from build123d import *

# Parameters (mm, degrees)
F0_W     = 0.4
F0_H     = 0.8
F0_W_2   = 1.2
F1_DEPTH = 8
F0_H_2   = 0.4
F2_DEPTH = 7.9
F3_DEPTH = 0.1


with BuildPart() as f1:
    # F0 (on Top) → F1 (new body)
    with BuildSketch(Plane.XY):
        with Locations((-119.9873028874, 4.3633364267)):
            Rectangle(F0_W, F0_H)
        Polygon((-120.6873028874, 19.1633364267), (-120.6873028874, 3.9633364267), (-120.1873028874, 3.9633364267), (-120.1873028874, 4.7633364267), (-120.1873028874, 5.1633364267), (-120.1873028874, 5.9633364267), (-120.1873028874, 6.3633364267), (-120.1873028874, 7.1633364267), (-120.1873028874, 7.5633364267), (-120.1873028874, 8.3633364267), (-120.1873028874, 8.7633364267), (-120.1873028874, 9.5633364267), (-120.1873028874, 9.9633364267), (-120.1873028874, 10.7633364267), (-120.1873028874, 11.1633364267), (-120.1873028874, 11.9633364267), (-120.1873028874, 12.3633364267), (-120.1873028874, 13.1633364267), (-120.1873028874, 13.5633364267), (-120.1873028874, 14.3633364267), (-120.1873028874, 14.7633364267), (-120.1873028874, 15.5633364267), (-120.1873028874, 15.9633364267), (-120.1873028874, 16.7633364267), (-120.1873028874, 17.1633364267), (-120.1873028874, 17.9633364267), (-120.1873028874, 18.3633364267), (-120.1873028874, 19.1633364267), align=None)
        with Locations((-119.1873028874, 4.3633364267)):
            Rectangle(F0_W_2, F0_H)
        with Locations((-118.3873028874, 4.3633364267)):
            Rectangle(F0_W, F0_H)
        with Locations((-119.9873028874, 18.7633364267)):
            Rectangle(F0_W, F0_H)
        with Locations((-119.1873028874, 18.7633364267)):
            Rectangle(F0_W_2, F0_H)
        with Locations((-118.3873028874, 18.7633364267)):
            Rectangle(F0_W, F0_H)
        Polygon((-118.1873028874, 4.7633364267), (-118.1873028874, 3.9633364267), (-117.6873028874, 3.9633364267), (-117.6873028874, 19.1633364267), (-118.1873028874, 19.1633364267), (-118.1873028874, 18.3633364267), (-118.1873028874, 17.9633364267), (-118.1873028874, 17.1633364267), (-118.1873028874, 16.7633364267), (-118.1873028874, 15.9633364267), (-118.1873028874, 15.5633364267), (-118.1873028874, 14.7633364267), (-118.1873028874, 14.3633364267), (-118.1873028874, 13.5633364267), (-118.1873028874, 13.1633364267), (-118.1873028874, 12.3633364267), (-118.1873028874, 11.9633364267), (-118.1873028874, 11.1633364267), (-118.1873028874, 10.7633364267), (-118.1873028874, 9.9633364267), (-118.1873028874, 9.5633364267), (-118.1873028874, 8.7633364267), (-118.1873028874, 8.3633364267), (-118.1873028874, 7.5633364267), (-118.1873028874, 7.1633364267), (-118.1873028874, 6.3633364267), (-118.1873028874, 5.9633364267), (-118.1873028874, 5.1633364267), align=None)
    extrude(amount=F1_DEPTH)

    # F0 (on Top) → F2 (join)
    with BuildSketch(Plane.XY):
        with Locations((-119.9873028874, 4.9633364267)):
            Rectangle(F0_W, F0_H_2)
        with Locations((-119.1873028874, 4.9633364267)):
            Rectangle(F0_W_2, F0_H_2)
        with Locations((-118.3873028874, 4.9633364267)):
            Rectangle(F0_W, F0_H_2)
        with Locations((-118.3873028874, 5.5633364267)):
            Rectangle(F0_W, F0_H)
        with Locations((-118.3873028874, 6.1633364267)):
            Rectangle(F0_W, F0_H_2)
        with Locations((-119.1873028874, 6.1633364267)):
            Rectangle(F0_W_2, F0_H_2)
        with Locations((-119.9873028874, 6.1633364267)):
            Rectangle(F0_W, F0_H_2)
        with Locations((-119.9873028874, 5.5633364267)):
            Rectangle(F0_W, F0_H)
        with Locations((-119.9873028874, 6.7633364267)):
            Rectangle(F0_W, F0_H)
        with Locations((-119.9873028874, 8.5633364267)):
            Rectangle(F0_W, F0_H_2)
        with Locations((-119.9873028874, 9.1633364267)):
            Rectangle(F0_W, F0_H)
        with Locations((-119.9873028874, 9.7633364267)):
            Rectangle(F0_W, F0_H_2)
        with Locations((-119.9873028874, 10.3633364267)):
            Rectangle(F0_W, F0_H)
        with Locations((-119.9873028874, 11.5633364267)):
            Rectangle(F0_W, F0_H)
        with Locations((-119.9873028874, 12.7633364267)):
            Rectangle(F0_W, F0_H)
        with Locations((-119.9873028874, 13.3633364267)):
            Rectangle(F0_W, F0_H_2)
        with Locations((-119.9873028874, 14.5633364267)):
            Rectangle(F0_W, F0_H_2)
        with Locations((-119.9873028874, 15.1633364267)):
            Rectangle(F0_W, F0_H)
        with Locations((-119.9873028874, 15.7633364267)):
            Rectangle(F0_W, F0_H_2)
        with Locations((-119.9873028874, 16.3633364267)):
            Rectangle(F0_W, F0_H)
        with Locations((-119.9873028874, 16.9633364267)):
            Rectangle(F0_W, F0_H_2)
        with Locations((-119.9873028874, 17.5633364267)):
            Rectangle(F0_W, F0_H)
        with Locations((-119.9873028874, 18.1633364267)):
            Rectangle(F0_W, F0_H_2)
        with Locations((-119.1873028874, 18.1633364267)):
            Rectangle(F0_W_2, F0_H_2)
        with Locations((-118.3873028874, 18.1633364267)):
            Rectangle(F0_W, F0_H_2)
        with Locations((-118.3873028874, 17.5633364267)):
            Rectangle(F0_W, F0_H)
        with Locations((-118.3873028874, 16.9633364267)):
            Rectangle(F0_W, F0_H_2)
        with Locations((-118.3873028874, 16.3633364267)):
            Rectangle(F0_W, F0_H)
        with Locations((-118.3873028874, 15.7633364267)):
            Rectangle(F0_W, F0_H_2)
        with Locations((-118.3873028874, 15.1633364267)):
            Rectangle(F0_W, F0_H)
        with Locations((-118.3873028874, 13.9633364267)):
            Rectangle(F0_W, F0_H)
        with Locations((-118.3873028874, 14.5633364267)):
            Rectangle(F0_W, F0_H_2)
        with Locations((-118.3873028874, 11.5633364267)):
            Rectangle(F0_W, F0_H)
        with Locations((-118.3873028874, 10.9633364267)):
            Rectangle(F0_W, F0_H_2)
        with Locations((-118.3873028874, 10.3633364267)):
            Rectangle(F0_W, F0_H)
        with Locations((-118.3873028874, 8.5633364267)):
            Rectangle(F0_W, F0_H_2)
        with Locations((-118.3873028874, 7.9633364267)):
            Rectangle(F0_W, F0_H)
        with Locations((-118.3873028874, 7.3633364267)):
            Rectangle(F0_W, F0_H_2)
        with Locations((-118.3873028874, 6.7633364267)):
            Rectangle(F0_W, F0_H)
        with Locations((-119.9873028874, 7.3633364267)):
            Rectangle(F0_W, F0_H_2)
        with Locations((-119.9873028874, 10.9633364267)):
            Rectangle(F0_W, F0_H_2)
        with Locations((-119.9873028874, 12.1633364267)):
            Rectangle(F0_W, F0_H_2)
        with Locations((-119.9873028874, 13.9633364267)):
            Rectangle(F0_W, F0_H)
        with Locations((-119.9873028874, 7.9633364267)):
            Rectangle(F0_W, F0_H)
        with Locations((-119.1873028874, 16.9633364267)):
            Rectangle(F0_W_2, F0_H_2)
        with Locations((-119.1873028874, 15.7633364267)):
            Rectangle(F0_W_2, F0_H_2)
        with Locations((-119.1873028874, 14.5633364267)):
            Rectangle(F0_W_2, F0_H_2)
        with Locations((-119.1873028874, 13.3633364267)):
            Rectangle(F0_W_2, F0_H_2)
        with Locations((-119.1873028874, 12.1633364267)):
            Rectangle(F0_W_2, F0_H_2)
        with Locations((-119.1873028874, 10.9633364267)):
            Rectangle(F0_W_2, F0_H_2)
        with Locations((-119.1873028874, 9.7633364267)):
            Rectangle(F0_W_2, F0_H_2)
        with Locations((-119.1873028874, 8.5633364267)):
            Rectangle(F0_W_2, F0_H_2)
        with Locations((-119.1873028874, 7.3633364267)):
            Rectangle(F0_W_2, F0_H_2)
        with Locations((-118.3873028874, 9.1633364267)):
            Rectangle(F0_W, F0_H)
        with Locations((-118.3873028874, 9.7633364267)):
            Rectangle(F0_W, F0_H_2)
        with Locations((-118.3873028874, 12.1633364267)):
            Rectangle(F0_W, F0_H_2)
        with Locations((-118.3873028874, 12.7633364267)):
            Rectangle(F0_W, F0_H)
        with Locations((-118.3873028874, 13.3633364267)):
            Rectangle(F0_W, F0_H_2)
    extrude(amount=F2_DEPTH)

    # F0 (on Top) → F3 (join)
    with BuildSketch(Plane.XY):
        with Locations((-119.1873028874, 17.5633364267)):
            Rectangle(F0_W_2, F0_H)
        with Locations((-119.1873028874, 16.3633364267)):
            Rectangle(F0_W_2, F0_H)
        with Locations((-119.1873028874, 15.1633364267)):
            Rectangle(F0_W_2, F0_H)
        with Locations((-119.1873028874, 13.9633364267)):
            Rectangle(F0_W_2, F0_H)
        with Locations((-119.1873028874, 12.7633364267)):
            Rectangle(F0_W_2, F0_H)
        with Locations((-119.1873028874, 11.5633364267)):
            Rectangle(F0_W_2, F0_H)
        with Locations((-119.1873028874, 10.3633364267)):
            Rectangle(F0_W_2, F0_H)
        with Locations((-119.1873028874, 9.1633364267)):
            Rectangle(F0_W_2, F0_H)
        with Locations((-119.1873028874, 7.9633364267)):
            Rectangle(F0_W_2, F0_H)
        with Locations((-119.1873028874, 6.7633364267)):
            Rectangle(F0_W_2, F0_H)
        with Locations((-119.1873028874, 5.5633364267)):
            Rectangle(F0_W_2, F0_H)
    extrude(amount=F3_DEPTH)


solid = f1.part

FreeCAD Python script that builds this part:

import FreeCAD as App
import Part
import Sketcher
from FreeCAD import Vector

doc = App.newDocument("Part")
body = doc.addObject("PartDesign::Body", "Body")

sketch1 = body.newObject("Sketcher::SketchObject", "Sketch")
sketch1.AttachmentSupport = (doc.getObject("XY_Plane"), [""])
sketch1.MapMode = "FlatFace"
sketch1.addGeometry(Part.LineSegment(Vector(-120.687303, 19.163336, 0), Vector(-120.687303, 3.963336, 0)), False)
sketch1.addGeometry(Part.LineSegment(Vector(-120.687303, 3.963336, 0), Vector(-117.687303, 3.963336, 0)), False)
sketch1.addGeometry(Part.LineSegment(Vector(-117.687303, 3.963336, 0), Vector(-117.687303, 19.163336, 0)), False)
sketch1.addGeometry(Part.LineSegment(Vector(-117.687303, 19.163336, 0), Vector(-120.687303, 19.163336, 0)), False)
sketch1.addGeometry(Part.LineSegment(Vector(-120.187303, 4.763336, 0), Vector(-120.187303, 18.363336, 0)), False)
sketch1.addGeometry(Part.LineSegment(Vector(-120.187303, 18.363336, 0), Vector(-118.187303, 18.363336, 0)), False)
sketch1.addGeometry(Part.LineSegment(Vector(-118.187303, 18.363336, 0), Vector(-118.187303, 4.763336, 0)), False)
sketch1.addGeometry(Part.LineSegment(Vector(-118.187303, 4.763336, 0), Vector(-120.187303, 4.763336, 0)), False)
sketch1.addConstraint(Sketcher.Constraint("Coincident", 0, 2, 1, 1))
sketch1.addConstraint(Sketcher.Constraint("Coincident", 1, 2, 2, 1))
sketch1.addConstraint(Sketcher.Constraint("Coincident", 2, 2, 3, 1))
sketch1.addConstraint(Sketcher.Constraint("Coincident", 3, 2, 0, 1))
sketch1.addConstraint(Sketcher.Constraint("Coincident", 4, 2, 5, 1))
sketch1.addConstraint(Sketcher.Constraint("Coincident", 5, 2, 6, 1))
sketch1.addConstraint(Sketcher.Constraint("Coincident", 6, 2, 7, 1))
sketch1.addConstraint(Sketcher.Constraint("Coincident", 7, 2, 4, 1))
sketch1.addConstraint(Sketcher.Constraint("Vertical", 0))
sketch1.addConstraint(Sketcher.Constraint("Horizontal", 1))
sketch1.addConstraint(Sketcher.Constraint("Vertical", 2))
sketch1.addConstraint(Sketcher.Constraint("Horizontal", 3))
sketch1.addConstraint(Sketcher.Constraint("Vertical", 4))
sketch1.addConstraint(Sketcher.Constraint("Horizontal", 5))
sketch1.addConstraint(Sketcher.Constraint("Vertical", 6))
sketch1.addConstraint(Sketcher.Constraint("Horizontal", 7))
sketch1.addConstraint(Sketcher.Constraint("DistanceX", 1, 1, 1, 2, 3.0))
sketch1.addConstraint(Sketcher.Constraint("DistanceX", 5, 1, 5, 2, 2.0))
sketch1.addConstraint(Sketcher.Constraint("DistanceY", 0, 2, 0, 1, 15.2))
sketch1.addConstraint(Sketcher.Constraint("DistanceY", 4, 1, 4, 2, 13.6))
sketch1.addConstraint(Sketcher.Constraint("DistanceX", 3, 2, 4, 2, 0.5))
sketch1.addConstraint(Sketcher.Constraint("DistanceY", 4, 2, 3, 2, 0.8))
sketch1.addConstraint(Sketcher.Constraint("DistanceX", 0, 2, -1, 1, 120.687303))
sketch1.addConstraint(Sketcher.Constraint("DistanceY", -1, 1, 0, 2, 3.963336))
pad1 = body.newObject("PartDesign::Pad", "Pad")
pad1.Profile = sketch1
pad1.Length = 8

sketch2 = body.newObject("Sketcher::SketchObject", "Sketch001")
sketch2.AttachmentSupport = (doc.getObject("XY_Plane"), [""])
sketch2.MapMode = "FlatFace"
sketch2.addGeometry(Part.LineSegment(Vector(-118.187303, 4.763336, 0), Vector(-118.187303, 18.363336, 0)), False)
sketch2.addGeometry(Part.LineSegment(Vector(-118.187303, 18.363336, 0), Vector(-120.187303, 18.363336, 0)), False)
sketch2.addGeometry(Part.LineSegment(Vector(-120.187303, 18.363336, 0), Vector(-120.187303, 4.763336, 0)), False)
sketch2.addGeometry(Part.LineSegment(Vector(-120.187303, 4.763336, 0), Vector(-118.187303, 4.763336, 0)), False)
sketch2.addGeometry(Part.LineSegment(Vector(-119.787303, 5.963336, 0), Vector(-118.587303, 5.963336, 0)), False)
sketch2.addGeometry(Part.LineSegment(Vector(-118.587303, 5.963336, 0), Vector(-118.587303, 5.163336, 0)), False)
sketch2.addGeometry(Part.LineSegment(Vector(-118.587303, 5.163336, 0), Vector(-119.787303, 5.163336, 0)), False)
sketch2.addGeometry(Part.LineSegment(Vector(-119.787303, 5.163336, 0), Vector(-119.787303, 5.963336, 0)), False)
sketch2.addGeometry(Part.LineSegment(Vector(-119.787303, 6.363336, 0), Vector(-119.787303, 7.163336, 0)), False)
sketch2.addGeometry(Part.LineSegment(Vector(-119.787303, 7.163336, 0), Vector(-118.587303, 7.163336, 0)), False)
sketch2.addGeometry(Part.LineSegment(Vector(-118.587303, 7.163336, 0), Vector(-118.587303, 6.363336, 0)), False)
sketch2.addGeometry(Part.LineSegment(Vector(-118.587303, 6.363336, 0), Vector(-119.787303, 6.363336, 0)), False)
sketch2.addGeometry(Part.LineSegment(Vector(-119.787303, 7.563336, 0), Vector(-119.787303, 8.363336, 0)), False)
sketch2.addGeometry(Part.LineSegment(Vector(-119.787303, 8.363336, 0), Vector(-118.587303, 8.363336, 0)), False)
sketch2.addGeometry(Part.LineSegment(Vector(-118.587303, 8.363336, 0), Vector(-118.587303, 7.563336, 0)), False)
sketch2.addGeometry(Part.LineSegment(Vector(-118.587303, 7.563336, 0), Vector(-119.787303, 7.563336, 0)), False)
sketch2.addGeometry(Part.LineSegment(Vector(-119.787303, 9.563336, 0), Vector(-118.587303, 9.563336, 0)), False)
sketch2.addGeometry(Part.LineSegment(Vector(-118.587303, 9.563336, 0), Vector(-118.587303, 8.763336, 0)), False)
sketch2.addGeometry(Part.LineSegment(Vector(-118.587303, 8.763336, 0), Vector(-119.787303, 8.763336, 0)), False)
sketch2.addGeometry(Part.LineSegment(Vector(-119.787303, 8.763336, 0), Vector(-119.787303, 9.563336, 0)), False)
sketch2.addGeometry(Part.LineSegment(Vector(-118.587303, 10.763336, 0), Vector(-118.587303, 9.963336, 0)), False)
sketch2.addGeometry(Part.LineSegment(Vector(-118.587303, 9.963336, 0), Vector(-119.787303, 9.963336, 0)), False)
sketch2.addGeometry(Part.LineSegment(Vector(-119.787303, 9.963336, 0), Vector(-119.787303, 10.763336, 0)), False)
sketch2.addGeometry(Part.LineSegment(Vector(-119.787303, 10.763336, 0), Vector(-118.587303, 10.763336, 0)), False)
sketch2.addGeometry(Part.LineSegment(Vector(-119.787303, 11.963336, 0), Vector(-118.587303, 11.963336, 0)), False)
sketch2.addGeometry(Part.LineSegment(Vector(-118.587303, 11.963336, 0), Vector(-118.587303, 11.163336, 0)), False)
sketch2.addGeometry(Part.LineSegment(Vector(-118.587303, 11.163336, 0), Vector(-119.787303, 11.163336, 0)), False)
sketch2.addGeometry(Part.LineSegment(Vector(-119.787303, 11.163336, 0), Vector(-119.787303, 11.963336, 0)), False)
sketch2.addGeometry(Part.LineSegment(Vector(-119.787303, 13.163336, 0), Vector(-118.587303, 13.163336, 0)), False)
sketch2.addGeometry(Part.LineSegment(Vector(-118.587303, 13.163336, 0), Vector(-118.587303, 12.363336, 0)), False)
sketch2.addGeometry(Part.LineSegment(Vector(-118.587303, 12.363336, 0), Vector(-119.787303, 12.363336, 0)), False)
sketch2.addGeometry(Part.LineSegment(Vector(-119.787303, 12.363336, 0), Vector(-119.787303, 13.163336, 0)), False)
sketch2.addGeometry(Part.LineSegment(Vector(-118.587303, 13.563336, 0), Vector(-119.787303, 13.563336, 0)), False)
sketch2.addGeometry(Part.LineSegment(Vector(-119.787303, 13.563336, 0), Vector(-119.787303, 14.363336, 0)), False)
sketch2.addGeometry(Part.LineSegment(Vector(-119.787303, 14.363336, 0), Vector(-118.587303, 14.363336, 0)), False)
sketch2.addGeometry(Part.LineSegment(Vector(-118.587303, 14.363336, 0), Vector(-118.587303, 13.563336, 0)), False)
sketch2.addGeometry(Part.LineSegment(Vector(-119.787303, 14.763336, 0), Vector(-119.787303, 15.563336, 0)), False)
sketch2.addGeometry(Part.LineSegment(Vector(-119.787303, 15.563336, 0), Vector(-118.587303, 15.563336, 0)), False)
sketch2.addGeometry(Part.LineSegment(Vector(-118.587303, 15.563336, 0), Vector(-118.587303, 14.763336, 0)), False)
sketch2.addGeometry(Part.LineSegment(Vector(-118.587303, 14.763336, 0), Vector(-119.787303, 14.763336, 0)), False)
sketch2.addGeometry(Part.LineSegment(Vector(-119.787303, 15.963336, 0), Vector(-119.787303, 16.763336, 0)), False)
sketch2.addGeometry(Part.LineSegment(Vector(-119.787303, 16.763336, 0), Vector(-118.587303, 16.763336, 0)), False)
sketch2.addGeometry(Part.LineSegment(Vector(-118.587303, 16.763336, 0), Vector(-118.587303, 15.963336, 0)), False)
sketch2.addGeometry(Part.LineSegment(Vector(-118.587303, 15.963336, 0), Vector(-119.787303, 15.963336, 0)), False)
sketch2.addGeometry(Part.LineSegment(Vector(-119.787303, 17.163336, 0), Vector(-119.787303, 17.963336, 0)), False)
sketch2.addGeometry(Part.LineSegment(Vector(-119.787303, 17.963336, 0), Vector(-118.587303, 17.963336, 0)), False)
sketch2.addGeometry(Part.LineSegment(Vector(-118.587303, 17.963336, 0), Vector(-118.587303, 17.163336, 0)), False)
sketch2.addGeometry(Part.LineSegment(Vector(-118.587303, 17.163336, 0), Vector(-119.787303, 17.163336, 0)), False)
sketch2.addConstraint(Sketcher.Constraint("Coincident", 0, 2, 1, 1))
sketch2.addConstraint(Sketcher.Constraint("Coincident", 1, 2, 2, 1))
sketch2.addConstraint(Sketcher.Constraint("Coincident", 2, 2, 3, 1))
sketch2.addConstraint(Sketcher.Constraint("Coincident", 3, 2, 0, 1))
sketch2.addConstraint(Sketcher.Constraint("Coincident", 4, 2, 5, 1))
sketch2.addConstraint(Sketcher.Constraint("Coincident", 5, 2, 6, 1))
sketch2.addConstraint(Sketcher.Constraint("Coincident", 6, 2, 7, 1))
sketch2.addConstraint(Sketcher.Constraint("Coincident", 7, 2, 4, 1))
sketch2.addConstraint(Sketcher.Constraint("Coincident", 8, 2, 9, 1))
sketch2.addConstraint(Sketcher.Constraint("Coincident", 9, 2, 10, 1))
sketch2.addConstraint(Sketcher.Constraint("Coincident", 10, 2, 11, 1))
sketch2.addConstraint(Sketcher.Constraint("Coincident", 11, 2, 8, 1))
sketch2.addConstraint(Sketcher.Constraint("Coincident", 12, 2, 13, 1))
sketch2.addConstraint(Sketcher.Constraint("Coincident", 13, 2, 14, 1))
sketch2.addConstraint(Sketcher.Constraint("Coincident", 14, 2, 15, 1))
sketch2.addConstraint(Sketcher.Constraint("Coincident", 15, 2, 12, 1))
sketch2.addConstraint(Sketcher.Constraint("Coincident", 16, 2, 17, 1))
sketch2.addConstraint(Sketcher.Constraint("Coincident", 17, 2, 18, 1))
sketch2.addConstraint(Sketcher.Constraint("Coincident", 18, 2, 19, 1))
sketch2.addConstraint(Sketcher.Constraint("Coincident", 19, 2, 16, 1))
sketch2.addConstraint(Sketcher.Constraint("Coincident", 20, 2, 21, 1))
sketch2.addConstraint(Sketcher.Constraint("Coincident", 21, 2, 22, 1))
sketch2.addConstraint(Sketcher.Constraint("Coincident", 22, 2, 23, 1))
sketch2.addConstraint(Sketcher.Constraint("Coincident", 23, 2, 20, 1))
sketch2.addConstraint(Sketcher.Constraint("Coincident", 24, 2, 25, 1))
sketch2.addConstraint(Sketcher.Constraint("Coincident", 25, 2, 26, 1))
sketch2.addConstraint(Sketcher.Constraint("Coincident", 26, 2, 27, 1))
sketch2.addConstraint(Sketcher.Constraint("Coincident", 27, 2, 24, 1))
sketch2.addConstraint(Sketcher.Constraint("Coincident", 28, 2, 29, 1))
sketch2.addConstraint(Sketcher.Constraint("Coincident", 29, 2, 30, 1))
sketch2.addConstraint(Sketcher.Constraint("Coincident", 30, 2, 31, 1))
sketch2.addConstraint(Sketcher.Constraint("Coincident", 31, 2, 28, 1))
sketch2.addConstraint(Sketcher.Constraint("Coincident", 32, 2, 33, 1))
sketch2.addConstraint(Sketcher.Constraint("Coincident", 33, 2, 34, 1))
sketch2.addConstraint(Sketcher.Constraint("Coincident", 34, 2, 35, 1))
sketch2.addConstraint(Sketcher.Constraint("Coincident", 35, 2, 32, 1))
sketch2.addConstraint(Sketcher.Constraint("Coincident", 36, 2, 37, 1))
sketch2.addConstraint(Sketcher.Constraint("Coincident", 37, 2, 38, 1))
sketch2.addConstraint(Sketcher.Constraint("Coincident", 38, 2, 39, 1))
sketch2.addConstraint(Sketcher.Constraint("Coincident", 39, 2, 36, 1))
sketch2.addConstraint(Sketcher.Constraint("Coincident", 40, 2, 41, 1))
sketch2.addConstraint(Sketcher.Constraint("Coincident", 41, 2, 42, 1))
sketch2.addConstraint(Sketcher.Constraint("Coincident", 42, 2, 43, 1))
sketch2.addConstraint(Sketcher.Constraint("Coincident", 43, 2, 40, 1))
sketch2.addConstraint(Sketcher.Constraint("Coincident", 44, 2, 45, 1))
sketch2.addConstraint(Sketcher.Constraint("Coincident", 45, 2, 46, 1))
sketch2.addConstraint(Sketcher.Constraint("Coincident", 46, 2, 47, 1))
sketch2.addConstraint(Sketcher.Constraint("Coincident", 47, 2, 44, 1))
sketch2.addConstraint(Sketcher.Constraint("Vertical", 0))
sketch2.addConstraint(Sketcher.Constraint("Horizontal", 1))
sketch2.addConstraint(Sketcher.Constraint("Vertical", 2))
sketch2.addConstraint(Sketcher.Constraint("Horizontal", 3))
sketch2.addConstraint(Sketcher.Constraint("Horizontal", 4))
sketch2.addConstraint(Sketcher.Constraint("Vertical", 5))
sketch2.addConstraint(Sketcher.Constraint("Horizontal", 6))
sketch2.addConstraint(Sketcher.Constraint("Vertical", 7))
sketch2.addConstraint(Sketcher.Constraint("Vertical", 8))
sketch2.addConstraint(Sketcher.Constraint("Horizontal", 9))
sketch2.addConstraint(Sketcher.Constraint("Vertical", 10))
sketch2.addConstraint(Sketcher.Constraint("Horizontal", 11))
sketch2.addConstraint(Sketcher.Constraint("Vertical", 12))
sketch2.addConstraint(Sketcher.Constraint("Horizontal", 13))
sketch2.addConstraint(Sketcher.Constraint("Vertical", 14))
sketch2.addConstraint(Sketcher.Constraint("Horizontal", 15))
sketch2.addConstraint(Sketcher.Constraint("Horizontal", 16))
sketch2.addConstraint(Sketcher.Constraint("Vertical", 17))
sketch2.addConstraint(Sketcher.Constraint("Horizontal", 18))
sketch2.addConstraint(Sketcher.Constraint("Vertical", 19))
sketch2.addConstraint(Sketcher.Constraint("Vertical", 20))
sketch2.addConstraint(Sketcher.Constraint("Horizontal", 21))
sketch2.addConstraint(Sketcher.Constraint("Vertical", 22))
sketch2.addConstraint(Sketcher.Constraint("Horizontal", 23))
sketch2.addConstraint(Sketcher.Constraint("Horizontal", 24))
sketch2.addConstraint(Sketcher.Constraint("Vertical", 25))
sketch2.addConstraint(Sketcher.Constraint("Horizontal", 26))
sketch2.addConstraint(Sketcher.Constraint("Vertical", 27))
sketch2.addConstraint(Sketcher.Constraint("Horizontal", 28))
sketch2.addConstraint(Sketcher.Constraint("Vertical", 29))
sketch2.addConstraint(Sketcher.Constraint("Horizontal", 30))
sketch2.addConstraint(Sketcher.Constraint("Vertical", 31))
sketch2.addConstraint(Sketcher.Constraint("Horizontal", 32))
sketch2.addConstraint(Sketcher.Constraint("Vertical", 33))
sketch2.addConstraint(Sketcher.Constraint("Horizontal", 34))
sketch2.addConstraint(Sketcher.Constraint("Vertical", 35))
sketch2.addConstraint(Sketcher.Constraint("Vertical", 36))
sketch2.addConstraint(Sketcher.Constraint("Horizontal", 37))
sketch2.addConstraint(Sketcher.Constraint("Vertical", 38))
sketch2.addConstraint(Sketcher.Constraint("Horizontal", 39))
sketch2.addConstraint(Sketcher.Constraint("Vertical", 40))
sketch2.addConstraint(Sketcher.Constraint("Horizontal", 41))
sketch2.addConstraint(Sketcher.Constraint("Vertical", 42))
sketch2.addConstraint(Sketcher.Constraint("Horizontal", 43))
sketch2.addConstraint(Sketcher.Constraint("Vertical", 44))
sketch2.addConstraint(Sketcher.Constraint("Horizontal", 45))
sketch2.addConstraint(Sketcher.Constraint("Vertical", 46))
sketch2.addConstraint(Sketcher.Constraint("Horizontal", 47))
sketch2.addConstraint(Sketcher.Constraint("Vertical", 7, 2, 8, 2))
sketch2.addConstraint(Sketcher.Constraint("Vertical", 5, 2, 9, 2))
sketch2.addConstraint(Sketcher.Constraint("Vertical", 11, 2, 12, 2))
sketch2.addConstraint(Sketcher.Constraint("Vertical", 10, 2, 13, 2))
sketch2.addConstraint(Sketcher.Constraint("Vertical", 14, 2, 16, 2))
sketch2.addConstraint(Sketcher.Constraint("Vertical", 15, 2, 18, 2))
sketch2.addConstraint(Sketcher.Constraint("Vertical", 17, 2, 20, 2))
sketch2.addConstraint(Sketcher.Constraint("Vertical", 19, 2, 21, 2))
sketch2.addConstraint(Sketcher.Constraint("Vertical", 23, 2, 24, 2))
sketch2.addConstraint(Sketcher.Constraint("Vertical", 22, 2, 26, 2))
sketch2.addConstraint(Sketcher.Constraint("Vertical", 25, 2, 28, 2))
sketch2.addConstraint(Sketcher.Constraint("Vertical", 27, 2, 30, 2))
sketch2.addConstraint(Sketcher.Constraint("Vertical", 31, 2, 32, 2))
sketch2.addConstraint(Sketcher.Constraint("Vertical", 29, 2, 34, 2))
sketch2.addConstraint(Sketcher.Constraint("Vertical", 33, 2, 36, 2))
sketch2.addConstraint(Sketcher.Constraint("Vertical", 35, 2, 37, 2))
sketch2.addConstraint(Sketcher.Constraint("Vertical", 39, 2, 40, 2))
sketch2.addConstraint(Sketcher.Constraint("Vertical", 38, 2, 41, 2))
sketch2.addConstraint(Sketcher.Constraint("Vertical", 43, 2, 44, 2))
sketch2.addConstraint(Sketcher.Constraint("Vertical", 42, 2, 45, 2))
sketch2.addConstraint(Sketcher.Constraint("Equal", 7, 8))
sketch2.addConstraint(Sketcher.Constraint("Equal", 10, 12))
sketch2.addConstraint(Sketcher.Constraint("Equal", 14, 17))
sketch2.addConstraint(Sketcher.Constraint("Equal", 19, 20))
sketch2.addConstraint(Sketcher.Constraint("Equal", 22, 25))
sketch2.addConstraint(Sketcher.Constraint("Equal", 27, 29))
sketch2.addConstraint(Sketcher.Constraint("Equal", 31, 33))
sketch2.addConstraint(Sketcher.Constraint("Equal", 35, 36))
sketch2.addConstraint(Sketcher.Constraint("Equal", 38, 40))
sketch2.addConstraint(Sketcher.Constraint("Equal", 42, 44))
sketch2.addConstraint(Sketcher.Constraint("DistanceX", 1, 2, 1, 1, 2.0))
sketch2.addConstraint(Sketcher.Constraint("DistanceX", 4, 1, 4, 2, 1.2))
sketch2.addConstraint(Sketcher.Constraint("DistanceY", 0, 1, 0, 2, 13.6))
sketch2.addConstraint(Sketcher.Constraint("DistanceY", 5, 2, 5, 1, 0.8))
sketch2.addConstraint(Sketcher.Constraint("DistanceY", 6, 2, 8, 2, 2.0))
sketch2.addConstraint(Sketcher.Constraint("DistanceY", 11, 2, 12, 2, 2.0))
sketch2.addConstraint(Sketcher.Constraint("DistanceY", 14, 2, 16, 2, 2.0))
sketch2.addConstraint(Sketcher.Constraint("DistanceY", 18, 2, 22, 2, 2.0))
sketch2.addConstraint(Sketcher.Constraint("DistanceY", 20, 2, 24, 2, 2.0))
sketch2.addConstraint(Sketcher.Constraint("DistanceY", 25, 2, 28, 2, 2.0))
sketch2.addConstraint(Sketcher.Constraint("DistanceY", 30, 2, 33, 2, 2.0))
sketch2.addConstraint(Sketcher.Constraint("DistanceY", 32, 2, 36, 2, 2.0))
sketch2.addConstraint(Sketcher.Constraint("DistanceY", 39, 2, 40, 2, 2.0))
sketch2.addConstraint(Sketcher.Constraint("DistanceY", 43, 2, 44, 2, 2.0))
sketch2.addConstraint(Sketcher.Constraint("DistanceX", 4, 2, 3, 2, 0.4))
sketch2.addConstraint(Sketcher.Constraint("DistanceY", 3, 2, 4, 2, 1.2))
sketch2.addConstraint(Sketcher.Constraint("DistanceX", 0, 2, -1, 1, 118.187303))
sketch2.addConstraint(Sketcher.Constraint("DistanceY", -1, 1, 0, 2, 18.363336))
pad2 = body.newObject("PartDesign::Pad", "Pad001")
pad2.Profile = sketch2
pad2.Length = 7.9

sketch3 = body.newObject("Sketcher::SketchObject", "Sketch002")
sketch3.AttachmentSupport = (doc.getObject("XY_Plane"), [""])
sketch3.MapMode = "FlatFace"
sketch3.addGeometry(Part.LineSegment(Vector(-119.787303, 17.963336, 0), Vector(-119.787303, 17.163336, 0)), False)
sketch3.addGeometry(Part.LineSegment(Vector(-119.787303, 17.163336, 0), Vector(-118.587303, 17.163336, 0)), False)
sketch3.addGeometry(Part.LineSegment(Vector(-118.587303, 17.163336, 0), Vector(-118.587303, 17.963336, 0)), False)
sketch3.addGeometry(Part.LineSegment(Vector(-118.587303, 17.963336, 0), Vector(-119.787303, 17.963336, 0)), False)
sketch3.addGeometry(Part.LineSegment(Vector(-119.787303, 16.763336, 0), Vector(-119.787303, 15.963336, 0)), False)
sketch3.addGeometry(Part.LineSegment(Vector(-119.787303, 15.963336, 0), Vector(-118.587303, 15.963336, 0)), False)
sketch3.addGeometry(Part.LineSegment(Vector(-118.587303, 15.963336, 0), Vector(-118.587303, 16.763336, 0)), False)
sketch3.addGeometry(Part.LineSegment(Vector(-118.587303, 16.763336, 0), Vector(-119.787303, 16.763336, 0)), False)
sketch3.addGeometry(Part.LineSegment(Vector(-119.787303, 15.563336, 0), Vector(-119.787303, 14.763336, 0)), False)
sketch3.addGeometry(Part.LineSegment(Vector(-119.787303, 14.763336, 0), Vector(-118.587303, 14.763336, 0)), False)
sketch3.addGeometry(Part.LineSegment(Vector(-118.587303, 14.763336, 0), Vector(-118.587303, 15.563336, 0)), False)
sketch3.addGeometry(Part.LineSegment(Vector(-118.587303, 15.563336, 0), Vector(-119.787303, 15.563336, 0)), False)
sketch3.addGeometry(Part.LineSegment(Vector(-119.787303, 14.363336, 0), Vector(-119.787303, 13.563336, 0)), False)
sketch3.addGeometry(Part.LineSegment(Vector(-119.787303, 13.563336, 0), Vector(-118.587303, 13.563336, 0)), False)
sketch3.addGeometry(Part.LineSegment(Vector(-118.587303, 13.563336, 0), Vector(-118.587303, 14.363336, 0)), False)
sketch3.addGeometry(Part.LineSegment(Vector(-118.587303, 14.363336, 0), Vector(-119.787303, 14.363336, 0)), False)
sketch3.addGeometry(Part.LineSegment(Vector(-119.787303, 13.163336, 0), Vector(-119.787303, 12.363336, 0)), False)
sketch3.addGeometry(Part.LineSegment(Vector(-119.787303, 12.363336, 0), Vector(-118.587303, 12.363336, 0)), False)
sketch3.addGeometry(Part.LineSegment(Vector(-118.587303, 12.363336, 0), Vector(-118.587303, 13.163336, 0)), False)
sketch3.addGeometry(Part.LineSegment(Vector(-118.587303, 13.163336, 0), Vector(-119.787303, 13.163336, 0)), False)
sketch3.addGeometry(Part.LineSegment(Vector(-119.787303, 11.963336, 0), Vector(-119.787303, 11.163336, 0)), False)
sketch3.addGeometry(Part.LineSegment(Vector(-119.787303, 11.163336, 0), Vector(-118.587303, 11.163336, 0)), False)
sketch3.addGeometry(Part.LineSegment(Vector(-118.587303, 11.163336, 0), Vector(-118.587303, 11.963336, 0)), False)
sketch3.addGeometry(Part.LineSegment(Vector(-118.587303, 11.963336, 0), Vector(-119.787303, 11.963336, 0)), False)
sketch3.addGeometry(Part.LineSegment(Vector(-119.787303, 10.763336, 0), Vector(-119.787303, 9.963336, 0)), False)
sketch3.addGeometry(Part.LineSegment(Vector(-119.787303, 9.963336, 0), Vector(-118.587303, 9.963336, 0)), False)
sketch3.addGeometry(Part.LineSegment(Vector(-118.587303, 9.963336, 0), Vector(-118.587303, 10.763336, 0)), False)
sketch3.addGeometry(Part.LineSegment(Vector(-118.587303, 10.763336, 0), Vector(-119.787303, 10.763336, 0)), False)
sketch3.addGeometry(Part.LineSegment(Vector(-119.787303, 9.563336, 0), Vector(-119.787303, 8.763336, 0)), False)
sketch3.addGeometry(Part.LineSegment(Vector(-119.787303, 8.763336, 0), Vector(-118.587303, 8.763336, 0)), False)
sketch3.addGeometry(Part.LineSegment(Vector(-118.587303, 8.763336, 0), Vector(-118.587303, 9.563336, 0)), False)
sketch3.addGeometry(Part.LineSegment(Vector(-118.587303, 9.563336, 0), Vector(-119.787303, 9.563336, 0)), False)
sketch3.addGeometry(Part.LineSegment(Vector(-119.787303, 8.363336, 0), Vector(-119.787303, 7.563336, 0)), False)
sketch3.addGeometry(Part.LineSegment(Vector(-119.787303, 7.563336, 0), Vector(-118.587303, 7.563336, 0)), False)
sketch3.addGeometry(Part.LineSegment(Vector(-118.587303, 7.563336, 0), Vector(-118.587303, 8.363336, 0)), False)
sketch3.addGeometry(Part.LineSegment(Vector(-118.587303, 8.363336, 0), Vector(-119.787303, 8.363336, 0)), False)
sketch3.addGeometry(Part.LineSegment(Vector(-119.787303, 7.163336, 0), Vector(-119.787303, 6.363336, 0)), False)
sketch3.addGeometry(Part.LineSegment(Vector(-119.787303, 6.363336, 0), Vector(-118.587303, 6.363336, 0)), False)
sketch3.addGeometry(Part.LineSegment(Vector(-118.587303, 6.363336, 0), Vector(-118.587303, 7.163336, 0)), False)
sketch3.addGeometry(Part.LineSegment(Vector(-118.587303, 7.163336, 0), Vector(-119.787303, 7.163336, 0)), False)
sketch3.addGeometry(Part.LineSegment(Vector(-119.787303, 5.963336, 0), Vector(-119.787303, 5.163336, 0)), False)
sketch3.addGeometry(Part.LineSegment(Vector(-119.787303, 5.163336, 0), Vector(-118.587303, 5.163336, 0)), False)
sketch3.addGeometry(Part.LineSegment(Vector(-118.587303, 5.163336, 0), Vector(-118.587303, 5.963336, 0)), False)
sketch3.addGeometry(Part.LineSegment(Vector(-118.587303, 5.963336, 0), Vector(-119.787303, 5.963336, 0)), False)
sketch3.addConstraint(Sketcher.Constraint("Coincident", 0, 2, 1, 1))
sketch3.addConstraint(Sketcher.Constraint("Coincident", 1, 2, 2, 1))
sketch3.addConstraint(Sketcher.Constraint("Coincident", 2, 2, 3, 1))
sketch3.addConstraint(Sketcher.Constraint("Coincident", 3, 2, 0, 1))
sketch3.addConstraint(Sketcher.Constraint("Coincident", 4, 2, 5, 1))
sketch3.addConstraint(Sketcher.Constraint("Coincident", 5, 2, 6, 1))
sketch3.addConstraint(Sketcher.Constraint("Coincident", 6, 2, 7, 1))
sketch3.addConstraint(Sketcher.Constraint("Coincident", 7, 2, 4, 1))
sketch3.addConstraint(Sketcher.Constraint("Coincident", 8, 2, 9, 1))
sketch3.addConstraint(Sketcher.Constraint("Coincident", 9, 2, 10, 1))
sketch3.addConstraint(Sketcher.Constraint("Coincident", 10, 2, 11, 1))
sketch3.addConstraint(Sketcher.Constraint("Coincident", 11, 2, 8, 1))
sketch3.addConstraint(Sketcher.Constraint("Coincident", 12, 2, 13, 1))
sketch3.addConstraint(Sketcher.Constraint("Coincident", 13, 2, 14, 1))
sketch3.addConstraint(Sketcher.Constraint("Coincident", 14, 2, 15, 1))
sketch3.addConstraint(Sketcher.Constraint("Coincident", 15, 2, 12, 1))
sketch3.addConstraint(Sketcher.Constraint("Coincident", 16, 2, 17, 1))
sketch3.addConstraint(Sketcher.Constraint("Coincident", 17, 2, 18, 1))
sketch3.addConstraint(Sketcher.Constraint("Coincident", 18, 2, 19, 1))
sketch3.addConstraint(Sketcher.Constraint("Coincident", 19, 2, 16, 1))
sketch3.addConstraint(Sketcher.Constraint("Coincident", 20, 2, 21, 1))
sketch3.addConstraint(Sketcher.Constraint("Coincident", 21, 2, 22, 1))
sketch3.addConstraint(Sketcher.Constraint("Coincident", 22, 2, 23, 1))
sketch3.addConstraint(Sketcher.Constraint("Coincident", 23, 2, 20, 1))
sketch3.addConstraint(Sketcher.Constraint("Coincident", 24, 2, 25, 1))
sketch3.addConstraint(Sketcher.Constraint("Coincident", 25, 2, 26, 1))
sketch3.addConstraint(Sketcher.Constraint("Coincident", 26, 2, 27, 1))
sketch3.addConstraint(Sketcher.Constraint("Coincident", 27, 2, 24, 1))
sketch3.addConstraint(Sketcher.Constraint("Coincident", 28, 2, 29, 1))
sketch3.addConstraint(Sketcher.Constraint("Coincident", 29, 2, 30, 1))
sketch3.addConstraint(Sketcher.Constraint("Coincident", 30, 2, 31, 1))
sketch3.addConstraint(Sketcher.Constraint("Coincident", 31, 2, 28, 1))
sketch3.addConstraint(Sketcher.Constraint("Coincident", 32, 2, 33, 1))
sketch3.addConstraint(Sketcher.Constraint("Coincident", 33, 2, 34, 1))
sketch3.addConstraint(Sketcher.Constraint("Coincident", 34, 2, 35, 1))
sketch3.addConstraint(Sketcher.Constraint("Coincident", 35, 2, 32, 1))
sketch3.addConstraint(Sketcher.Constraint("Coincident", 36, 2, 37, 1))
sketch3.addConstraint(Sketcher.Constraint("Coincident", 37, 2, 38, 1))
sketch3.addConstraint(Sketcher.Constraint("Coincident", 38, 2, 39, 1))
sketch3.addConstraint(Sketcher.Constraint("Coincident", 39, 2, 36, 1))
sketch3.addConstraint(Sketcher.Constraint("Coincident", 40, 2, 41, 1))
sketch3.addConstraint(Sketcher.Constraint("Coincident", 41, 2, 42, 1))
sketch3.addConstraint(Sketcher.Constraint("Coincident", 42, 2, 43, 1))
sketch3.addConstraint(Sketcher.Constraint("Coincident", 43, 2, 40, 1))
sketch3.addConstraint(Sketcher.Constraint("Vertical", 0))
sketch3.addConstraint(Sketcher.Constraint("Horizontal", 1))
sketch3.addConstraint(Sketcher.Constraint("Vertical", 2))
sketch3.addConstraint(Sketcher.Constraint("Horizontal", 3))
sketch3.addConstraint(Sketcher.Constraint("Vertical", 4))
sketch3.addConstraint(Sketcher.Constraint("Horizontal", 5))
sketch3.addConstraint(Sketcher.Constraint("Vertical", 6))
sketch3.addConstraint(Sketcher.Constraint("Horizontal", 7))
sketch3.addConstraint(Sketcher.Constraint("Vertical", 8))
sketch3.addConstraint(Sketcher.Constraint("Horizontal", 9))
sketch3.addConstraint(Sketcher.Constraint("Vertical", 10))
sketch3.addConstraint(Sketcher.Constraint("Horizontal", 11))
sketch3.addConstraint(Sketcher.Constraint("Vertical", 12))
sketch3.addConstraint(Sketcher.Constraint("Horizontal", 13))
sketch3.addConstraint(Sketcher.Constraint("Vertical", 14))
sketch3.addConstraint(Sketcher.Constraint("Horizontal", 15))
sketch3.addConstraint(Sketcher.Constraint("Vertical", 16))
sketch3.addConstraint(Sketcher.Constraint("Horizontal", 17))
sketch3.addConstraint(Sketcher.Constraint("Vertical", 18))
sketch3.addConstraint(Sketcher.Constraint("Horizontal", 19))
sketch3.addConstraint(Sketcher.Constraint("Vertical", 20))
sketch3.addConstraint(Sketcher.Constraint("Horizontal", 21))
sketch3.addConstraint(Sketcher.Constraint("Vertical", 22))
sketch3.addConstraint(Sketcher.Constraint("Horizontal", 23))
sketch3.addConstraint(Sketcher.Constraint("Vertical", 24))
sketch3.addConstraint(Sketcher.Constraint("Horizontal", 25))
sketch3.addConstraint(Sketcher.Constraint("Vertical", 26))
sketch3.addConstraint(Sketcher.Constraint("Horizontal", 27))
sketch3.addConstraint(Sketcher.Constraint("Vertical", 28))
sketch3.addConstraint(Sketcher.Constraint("Horizontal", 29))
sketch3.addConstraint(Sketcher.Constraint("Vertical", 30))
sketch3.addConstraint(Sketcher.Constraint("Horizontal", 31))
sketch3.addConstraint(Sketcher.Constraint("Vertical", 32))
sketch3.addConstraint(Sketcher.Constraint("Horizontal", 33))
sketch3.addConstraint(Sketcher.Constraint("Vertical", 34))
sketch3.addConstraint(Sketcher.Constraint("Horizontal", 35))
sketch3.addConstraint(Sketcher.Constraint("Vertical", 36))
sketch3.addConstraint(Sketcher.Constraint("Horizontal", 37))
sketch3.addConstraint(Sketcher.Constraint("Vertical", 38))
sketch3.addConstraint(Sketcher.Constraint("Horizontal", 39))
sketch3.addConstraint(Sketcher.Constraint("Vertical", 40))
sketch3.addConstraint(Sketcher.Constraint("Horizontal", 41))
sketch3.addConstraint(Sketcher.Constraint("Vertical", 42))
sketch3.addConstraint(Sketcher.Constraint("Horizontal", 43))
sketch3.addConstraint(Sketcher.Constraint("Vertical", 3, 2, 4, 2))
sketch3.addConstraint(Sketcher.Constraint("Vertical", 2, 2, 5, 2))
sketch3.addConstraint(Sketcher.Constraint("Vertical", 7, 2, 8, 2))
sketch3.addConstraint(Sketcher.Constraint("Vertical", 6, 2, 9, 2))
sketch3.addConstraint(Sketcher.Constraint("Vertical", 11, 2, 12, 2))
sketch3.addConstraint(Sketcher.Constraint("Vertical", 10, 2, 13, 2))
sketch3.addConstraint(Sketcher.Constraint("Vertical", 15, 2, 16, 2))
sketch3.addConstraint(Sketcher.Constraint("Vertical", 14, 2, 17, 2))
sketch3.addConstraint(Sketcher.Constraint("Vertical", 19, 2, 20, 2))
sketch3.addConstraint(Sketcher.Constraint("Vertical", 18, 2, 21, 2))
sketch3.addConstraint(Sketcher.Constraint("Vertical", 23, 2, 24, 2))
sketch3.addConstraint(Sketcher.Constraint("Vertical", 22, 2, 25, 2))
sketch3.addConstraint(Sketcher.Constraint("Vertical", 27, 2, 28, 2))
sketch3.addConstraint(Sketcher.Constraint("Vertical", 26, 2, 29, 2))
sketch3.addConstraint(Sketcher.Constraint("Vertical", 31, 2, 32, 2))
sketch3.addConstraint(Sketcher.Constraint("Vertical", 30, 2, 33, 2))
sketch3.addConstraint(Sketcher.Constraint("Vertical", 35, 2, 36, 2))
sketch3.addConstraint(Sketcher.Constraint("Vertical", 34, 2, 37, 2))
sketch3.addConstraint(Sketcher.Constraint("Vertical", 39, 2, 40, 2))
sketch3.addConstraint(Sketcher.Constraint("Vertical", 38, 2, 41, 2))
sketch3.addConstraint(Sketcher.Constraint("Equal", 2, 4))
sketch3.addConstraint(Sketcher.Constraint("Equal", 6, 8))
sketch3.addConstraint(Sketcher.Constraint("Equal", 10, 12))
sketch3.addConstraint(Sketcher.Constraint("Equal", 14, 16))
sketch3.addConstraint(Sketcher.Constraint("Equal", 18, 20))
sketch3.addConstraint(Sketcher.Constraint("Equal", 22, 24))
sketch3.addConstraint(Sketcher.Constraint("Equal", 26, 28))
sketch3.addConstraint(Sketcher.Constraint("Equal", 30, 32))
sketch3.addConstraint(Sketcher.Constraint("Equal", 34, 36))
sketch3.addConstraint(Sketcher.Constraint("Equal", 38, 40))
sketch3.addConstraint(Sketcher.Constraint("DistanceX", 1, 1, 1, 2, 1.2))
sketch3.addConstraint(Sketcher.Constraint("DistanceY", 0, 2, 0, 1, 0.8))
sketch3.addConstraint(Sketcher.Constraint("DistanceY", 4, 2, 3, 2, 2.0))
sketch3.addConstraint(Sketcher.Constraint("DistanceY", 8, 2, 7, 2, 2.0))
sketch3.addConstraint(Sketcher.Constraint("DistanceY", 12, 2, 11, 2, 2.0))
sketch3.addConstraint(Sketcher.Constraint("DistanceY", 16, 2, 15, 2, 2.0))
sketch3.addConstraint(Sketcher.Constraint("DistanceY", 20, 2, 19, 2, 2.0))
sketch3.addConstraint(Sketcher.Constraint("DistanceY", 24, 2, 23, 2, 2.0))
sketch3.addConstraint(Sketcher.Constraint("DistanceY", 28, 2, 27, 2, 2.0))
sketch3.addConstraint(Sketcher.Constraint("DistanceY", 32, 2, 31, 2, 2.0))
sketch3.addConstraint(Sketcher.Constraint("DistanceY", 36, 2, 35, 2, 2.0))
sketch3.addConstraint(Sketcher.Constraint("DistanceY", 40, 2, 39, 2, 2.0))
sketch3.addConstraint(Sketcher.Constraint("DistanceX", 0, 2, -1, 1, 119.787303))
sketch3.addConstraint(Sketcher.Constraint("DistanceY", -1, 1, 0, 2, 17.163336))
pad3 = body.newObject("PartDesign::Pad", "Pad002")
pad3.Profile = sketch3
pad3.Length = 0.1

doc.recompute()
